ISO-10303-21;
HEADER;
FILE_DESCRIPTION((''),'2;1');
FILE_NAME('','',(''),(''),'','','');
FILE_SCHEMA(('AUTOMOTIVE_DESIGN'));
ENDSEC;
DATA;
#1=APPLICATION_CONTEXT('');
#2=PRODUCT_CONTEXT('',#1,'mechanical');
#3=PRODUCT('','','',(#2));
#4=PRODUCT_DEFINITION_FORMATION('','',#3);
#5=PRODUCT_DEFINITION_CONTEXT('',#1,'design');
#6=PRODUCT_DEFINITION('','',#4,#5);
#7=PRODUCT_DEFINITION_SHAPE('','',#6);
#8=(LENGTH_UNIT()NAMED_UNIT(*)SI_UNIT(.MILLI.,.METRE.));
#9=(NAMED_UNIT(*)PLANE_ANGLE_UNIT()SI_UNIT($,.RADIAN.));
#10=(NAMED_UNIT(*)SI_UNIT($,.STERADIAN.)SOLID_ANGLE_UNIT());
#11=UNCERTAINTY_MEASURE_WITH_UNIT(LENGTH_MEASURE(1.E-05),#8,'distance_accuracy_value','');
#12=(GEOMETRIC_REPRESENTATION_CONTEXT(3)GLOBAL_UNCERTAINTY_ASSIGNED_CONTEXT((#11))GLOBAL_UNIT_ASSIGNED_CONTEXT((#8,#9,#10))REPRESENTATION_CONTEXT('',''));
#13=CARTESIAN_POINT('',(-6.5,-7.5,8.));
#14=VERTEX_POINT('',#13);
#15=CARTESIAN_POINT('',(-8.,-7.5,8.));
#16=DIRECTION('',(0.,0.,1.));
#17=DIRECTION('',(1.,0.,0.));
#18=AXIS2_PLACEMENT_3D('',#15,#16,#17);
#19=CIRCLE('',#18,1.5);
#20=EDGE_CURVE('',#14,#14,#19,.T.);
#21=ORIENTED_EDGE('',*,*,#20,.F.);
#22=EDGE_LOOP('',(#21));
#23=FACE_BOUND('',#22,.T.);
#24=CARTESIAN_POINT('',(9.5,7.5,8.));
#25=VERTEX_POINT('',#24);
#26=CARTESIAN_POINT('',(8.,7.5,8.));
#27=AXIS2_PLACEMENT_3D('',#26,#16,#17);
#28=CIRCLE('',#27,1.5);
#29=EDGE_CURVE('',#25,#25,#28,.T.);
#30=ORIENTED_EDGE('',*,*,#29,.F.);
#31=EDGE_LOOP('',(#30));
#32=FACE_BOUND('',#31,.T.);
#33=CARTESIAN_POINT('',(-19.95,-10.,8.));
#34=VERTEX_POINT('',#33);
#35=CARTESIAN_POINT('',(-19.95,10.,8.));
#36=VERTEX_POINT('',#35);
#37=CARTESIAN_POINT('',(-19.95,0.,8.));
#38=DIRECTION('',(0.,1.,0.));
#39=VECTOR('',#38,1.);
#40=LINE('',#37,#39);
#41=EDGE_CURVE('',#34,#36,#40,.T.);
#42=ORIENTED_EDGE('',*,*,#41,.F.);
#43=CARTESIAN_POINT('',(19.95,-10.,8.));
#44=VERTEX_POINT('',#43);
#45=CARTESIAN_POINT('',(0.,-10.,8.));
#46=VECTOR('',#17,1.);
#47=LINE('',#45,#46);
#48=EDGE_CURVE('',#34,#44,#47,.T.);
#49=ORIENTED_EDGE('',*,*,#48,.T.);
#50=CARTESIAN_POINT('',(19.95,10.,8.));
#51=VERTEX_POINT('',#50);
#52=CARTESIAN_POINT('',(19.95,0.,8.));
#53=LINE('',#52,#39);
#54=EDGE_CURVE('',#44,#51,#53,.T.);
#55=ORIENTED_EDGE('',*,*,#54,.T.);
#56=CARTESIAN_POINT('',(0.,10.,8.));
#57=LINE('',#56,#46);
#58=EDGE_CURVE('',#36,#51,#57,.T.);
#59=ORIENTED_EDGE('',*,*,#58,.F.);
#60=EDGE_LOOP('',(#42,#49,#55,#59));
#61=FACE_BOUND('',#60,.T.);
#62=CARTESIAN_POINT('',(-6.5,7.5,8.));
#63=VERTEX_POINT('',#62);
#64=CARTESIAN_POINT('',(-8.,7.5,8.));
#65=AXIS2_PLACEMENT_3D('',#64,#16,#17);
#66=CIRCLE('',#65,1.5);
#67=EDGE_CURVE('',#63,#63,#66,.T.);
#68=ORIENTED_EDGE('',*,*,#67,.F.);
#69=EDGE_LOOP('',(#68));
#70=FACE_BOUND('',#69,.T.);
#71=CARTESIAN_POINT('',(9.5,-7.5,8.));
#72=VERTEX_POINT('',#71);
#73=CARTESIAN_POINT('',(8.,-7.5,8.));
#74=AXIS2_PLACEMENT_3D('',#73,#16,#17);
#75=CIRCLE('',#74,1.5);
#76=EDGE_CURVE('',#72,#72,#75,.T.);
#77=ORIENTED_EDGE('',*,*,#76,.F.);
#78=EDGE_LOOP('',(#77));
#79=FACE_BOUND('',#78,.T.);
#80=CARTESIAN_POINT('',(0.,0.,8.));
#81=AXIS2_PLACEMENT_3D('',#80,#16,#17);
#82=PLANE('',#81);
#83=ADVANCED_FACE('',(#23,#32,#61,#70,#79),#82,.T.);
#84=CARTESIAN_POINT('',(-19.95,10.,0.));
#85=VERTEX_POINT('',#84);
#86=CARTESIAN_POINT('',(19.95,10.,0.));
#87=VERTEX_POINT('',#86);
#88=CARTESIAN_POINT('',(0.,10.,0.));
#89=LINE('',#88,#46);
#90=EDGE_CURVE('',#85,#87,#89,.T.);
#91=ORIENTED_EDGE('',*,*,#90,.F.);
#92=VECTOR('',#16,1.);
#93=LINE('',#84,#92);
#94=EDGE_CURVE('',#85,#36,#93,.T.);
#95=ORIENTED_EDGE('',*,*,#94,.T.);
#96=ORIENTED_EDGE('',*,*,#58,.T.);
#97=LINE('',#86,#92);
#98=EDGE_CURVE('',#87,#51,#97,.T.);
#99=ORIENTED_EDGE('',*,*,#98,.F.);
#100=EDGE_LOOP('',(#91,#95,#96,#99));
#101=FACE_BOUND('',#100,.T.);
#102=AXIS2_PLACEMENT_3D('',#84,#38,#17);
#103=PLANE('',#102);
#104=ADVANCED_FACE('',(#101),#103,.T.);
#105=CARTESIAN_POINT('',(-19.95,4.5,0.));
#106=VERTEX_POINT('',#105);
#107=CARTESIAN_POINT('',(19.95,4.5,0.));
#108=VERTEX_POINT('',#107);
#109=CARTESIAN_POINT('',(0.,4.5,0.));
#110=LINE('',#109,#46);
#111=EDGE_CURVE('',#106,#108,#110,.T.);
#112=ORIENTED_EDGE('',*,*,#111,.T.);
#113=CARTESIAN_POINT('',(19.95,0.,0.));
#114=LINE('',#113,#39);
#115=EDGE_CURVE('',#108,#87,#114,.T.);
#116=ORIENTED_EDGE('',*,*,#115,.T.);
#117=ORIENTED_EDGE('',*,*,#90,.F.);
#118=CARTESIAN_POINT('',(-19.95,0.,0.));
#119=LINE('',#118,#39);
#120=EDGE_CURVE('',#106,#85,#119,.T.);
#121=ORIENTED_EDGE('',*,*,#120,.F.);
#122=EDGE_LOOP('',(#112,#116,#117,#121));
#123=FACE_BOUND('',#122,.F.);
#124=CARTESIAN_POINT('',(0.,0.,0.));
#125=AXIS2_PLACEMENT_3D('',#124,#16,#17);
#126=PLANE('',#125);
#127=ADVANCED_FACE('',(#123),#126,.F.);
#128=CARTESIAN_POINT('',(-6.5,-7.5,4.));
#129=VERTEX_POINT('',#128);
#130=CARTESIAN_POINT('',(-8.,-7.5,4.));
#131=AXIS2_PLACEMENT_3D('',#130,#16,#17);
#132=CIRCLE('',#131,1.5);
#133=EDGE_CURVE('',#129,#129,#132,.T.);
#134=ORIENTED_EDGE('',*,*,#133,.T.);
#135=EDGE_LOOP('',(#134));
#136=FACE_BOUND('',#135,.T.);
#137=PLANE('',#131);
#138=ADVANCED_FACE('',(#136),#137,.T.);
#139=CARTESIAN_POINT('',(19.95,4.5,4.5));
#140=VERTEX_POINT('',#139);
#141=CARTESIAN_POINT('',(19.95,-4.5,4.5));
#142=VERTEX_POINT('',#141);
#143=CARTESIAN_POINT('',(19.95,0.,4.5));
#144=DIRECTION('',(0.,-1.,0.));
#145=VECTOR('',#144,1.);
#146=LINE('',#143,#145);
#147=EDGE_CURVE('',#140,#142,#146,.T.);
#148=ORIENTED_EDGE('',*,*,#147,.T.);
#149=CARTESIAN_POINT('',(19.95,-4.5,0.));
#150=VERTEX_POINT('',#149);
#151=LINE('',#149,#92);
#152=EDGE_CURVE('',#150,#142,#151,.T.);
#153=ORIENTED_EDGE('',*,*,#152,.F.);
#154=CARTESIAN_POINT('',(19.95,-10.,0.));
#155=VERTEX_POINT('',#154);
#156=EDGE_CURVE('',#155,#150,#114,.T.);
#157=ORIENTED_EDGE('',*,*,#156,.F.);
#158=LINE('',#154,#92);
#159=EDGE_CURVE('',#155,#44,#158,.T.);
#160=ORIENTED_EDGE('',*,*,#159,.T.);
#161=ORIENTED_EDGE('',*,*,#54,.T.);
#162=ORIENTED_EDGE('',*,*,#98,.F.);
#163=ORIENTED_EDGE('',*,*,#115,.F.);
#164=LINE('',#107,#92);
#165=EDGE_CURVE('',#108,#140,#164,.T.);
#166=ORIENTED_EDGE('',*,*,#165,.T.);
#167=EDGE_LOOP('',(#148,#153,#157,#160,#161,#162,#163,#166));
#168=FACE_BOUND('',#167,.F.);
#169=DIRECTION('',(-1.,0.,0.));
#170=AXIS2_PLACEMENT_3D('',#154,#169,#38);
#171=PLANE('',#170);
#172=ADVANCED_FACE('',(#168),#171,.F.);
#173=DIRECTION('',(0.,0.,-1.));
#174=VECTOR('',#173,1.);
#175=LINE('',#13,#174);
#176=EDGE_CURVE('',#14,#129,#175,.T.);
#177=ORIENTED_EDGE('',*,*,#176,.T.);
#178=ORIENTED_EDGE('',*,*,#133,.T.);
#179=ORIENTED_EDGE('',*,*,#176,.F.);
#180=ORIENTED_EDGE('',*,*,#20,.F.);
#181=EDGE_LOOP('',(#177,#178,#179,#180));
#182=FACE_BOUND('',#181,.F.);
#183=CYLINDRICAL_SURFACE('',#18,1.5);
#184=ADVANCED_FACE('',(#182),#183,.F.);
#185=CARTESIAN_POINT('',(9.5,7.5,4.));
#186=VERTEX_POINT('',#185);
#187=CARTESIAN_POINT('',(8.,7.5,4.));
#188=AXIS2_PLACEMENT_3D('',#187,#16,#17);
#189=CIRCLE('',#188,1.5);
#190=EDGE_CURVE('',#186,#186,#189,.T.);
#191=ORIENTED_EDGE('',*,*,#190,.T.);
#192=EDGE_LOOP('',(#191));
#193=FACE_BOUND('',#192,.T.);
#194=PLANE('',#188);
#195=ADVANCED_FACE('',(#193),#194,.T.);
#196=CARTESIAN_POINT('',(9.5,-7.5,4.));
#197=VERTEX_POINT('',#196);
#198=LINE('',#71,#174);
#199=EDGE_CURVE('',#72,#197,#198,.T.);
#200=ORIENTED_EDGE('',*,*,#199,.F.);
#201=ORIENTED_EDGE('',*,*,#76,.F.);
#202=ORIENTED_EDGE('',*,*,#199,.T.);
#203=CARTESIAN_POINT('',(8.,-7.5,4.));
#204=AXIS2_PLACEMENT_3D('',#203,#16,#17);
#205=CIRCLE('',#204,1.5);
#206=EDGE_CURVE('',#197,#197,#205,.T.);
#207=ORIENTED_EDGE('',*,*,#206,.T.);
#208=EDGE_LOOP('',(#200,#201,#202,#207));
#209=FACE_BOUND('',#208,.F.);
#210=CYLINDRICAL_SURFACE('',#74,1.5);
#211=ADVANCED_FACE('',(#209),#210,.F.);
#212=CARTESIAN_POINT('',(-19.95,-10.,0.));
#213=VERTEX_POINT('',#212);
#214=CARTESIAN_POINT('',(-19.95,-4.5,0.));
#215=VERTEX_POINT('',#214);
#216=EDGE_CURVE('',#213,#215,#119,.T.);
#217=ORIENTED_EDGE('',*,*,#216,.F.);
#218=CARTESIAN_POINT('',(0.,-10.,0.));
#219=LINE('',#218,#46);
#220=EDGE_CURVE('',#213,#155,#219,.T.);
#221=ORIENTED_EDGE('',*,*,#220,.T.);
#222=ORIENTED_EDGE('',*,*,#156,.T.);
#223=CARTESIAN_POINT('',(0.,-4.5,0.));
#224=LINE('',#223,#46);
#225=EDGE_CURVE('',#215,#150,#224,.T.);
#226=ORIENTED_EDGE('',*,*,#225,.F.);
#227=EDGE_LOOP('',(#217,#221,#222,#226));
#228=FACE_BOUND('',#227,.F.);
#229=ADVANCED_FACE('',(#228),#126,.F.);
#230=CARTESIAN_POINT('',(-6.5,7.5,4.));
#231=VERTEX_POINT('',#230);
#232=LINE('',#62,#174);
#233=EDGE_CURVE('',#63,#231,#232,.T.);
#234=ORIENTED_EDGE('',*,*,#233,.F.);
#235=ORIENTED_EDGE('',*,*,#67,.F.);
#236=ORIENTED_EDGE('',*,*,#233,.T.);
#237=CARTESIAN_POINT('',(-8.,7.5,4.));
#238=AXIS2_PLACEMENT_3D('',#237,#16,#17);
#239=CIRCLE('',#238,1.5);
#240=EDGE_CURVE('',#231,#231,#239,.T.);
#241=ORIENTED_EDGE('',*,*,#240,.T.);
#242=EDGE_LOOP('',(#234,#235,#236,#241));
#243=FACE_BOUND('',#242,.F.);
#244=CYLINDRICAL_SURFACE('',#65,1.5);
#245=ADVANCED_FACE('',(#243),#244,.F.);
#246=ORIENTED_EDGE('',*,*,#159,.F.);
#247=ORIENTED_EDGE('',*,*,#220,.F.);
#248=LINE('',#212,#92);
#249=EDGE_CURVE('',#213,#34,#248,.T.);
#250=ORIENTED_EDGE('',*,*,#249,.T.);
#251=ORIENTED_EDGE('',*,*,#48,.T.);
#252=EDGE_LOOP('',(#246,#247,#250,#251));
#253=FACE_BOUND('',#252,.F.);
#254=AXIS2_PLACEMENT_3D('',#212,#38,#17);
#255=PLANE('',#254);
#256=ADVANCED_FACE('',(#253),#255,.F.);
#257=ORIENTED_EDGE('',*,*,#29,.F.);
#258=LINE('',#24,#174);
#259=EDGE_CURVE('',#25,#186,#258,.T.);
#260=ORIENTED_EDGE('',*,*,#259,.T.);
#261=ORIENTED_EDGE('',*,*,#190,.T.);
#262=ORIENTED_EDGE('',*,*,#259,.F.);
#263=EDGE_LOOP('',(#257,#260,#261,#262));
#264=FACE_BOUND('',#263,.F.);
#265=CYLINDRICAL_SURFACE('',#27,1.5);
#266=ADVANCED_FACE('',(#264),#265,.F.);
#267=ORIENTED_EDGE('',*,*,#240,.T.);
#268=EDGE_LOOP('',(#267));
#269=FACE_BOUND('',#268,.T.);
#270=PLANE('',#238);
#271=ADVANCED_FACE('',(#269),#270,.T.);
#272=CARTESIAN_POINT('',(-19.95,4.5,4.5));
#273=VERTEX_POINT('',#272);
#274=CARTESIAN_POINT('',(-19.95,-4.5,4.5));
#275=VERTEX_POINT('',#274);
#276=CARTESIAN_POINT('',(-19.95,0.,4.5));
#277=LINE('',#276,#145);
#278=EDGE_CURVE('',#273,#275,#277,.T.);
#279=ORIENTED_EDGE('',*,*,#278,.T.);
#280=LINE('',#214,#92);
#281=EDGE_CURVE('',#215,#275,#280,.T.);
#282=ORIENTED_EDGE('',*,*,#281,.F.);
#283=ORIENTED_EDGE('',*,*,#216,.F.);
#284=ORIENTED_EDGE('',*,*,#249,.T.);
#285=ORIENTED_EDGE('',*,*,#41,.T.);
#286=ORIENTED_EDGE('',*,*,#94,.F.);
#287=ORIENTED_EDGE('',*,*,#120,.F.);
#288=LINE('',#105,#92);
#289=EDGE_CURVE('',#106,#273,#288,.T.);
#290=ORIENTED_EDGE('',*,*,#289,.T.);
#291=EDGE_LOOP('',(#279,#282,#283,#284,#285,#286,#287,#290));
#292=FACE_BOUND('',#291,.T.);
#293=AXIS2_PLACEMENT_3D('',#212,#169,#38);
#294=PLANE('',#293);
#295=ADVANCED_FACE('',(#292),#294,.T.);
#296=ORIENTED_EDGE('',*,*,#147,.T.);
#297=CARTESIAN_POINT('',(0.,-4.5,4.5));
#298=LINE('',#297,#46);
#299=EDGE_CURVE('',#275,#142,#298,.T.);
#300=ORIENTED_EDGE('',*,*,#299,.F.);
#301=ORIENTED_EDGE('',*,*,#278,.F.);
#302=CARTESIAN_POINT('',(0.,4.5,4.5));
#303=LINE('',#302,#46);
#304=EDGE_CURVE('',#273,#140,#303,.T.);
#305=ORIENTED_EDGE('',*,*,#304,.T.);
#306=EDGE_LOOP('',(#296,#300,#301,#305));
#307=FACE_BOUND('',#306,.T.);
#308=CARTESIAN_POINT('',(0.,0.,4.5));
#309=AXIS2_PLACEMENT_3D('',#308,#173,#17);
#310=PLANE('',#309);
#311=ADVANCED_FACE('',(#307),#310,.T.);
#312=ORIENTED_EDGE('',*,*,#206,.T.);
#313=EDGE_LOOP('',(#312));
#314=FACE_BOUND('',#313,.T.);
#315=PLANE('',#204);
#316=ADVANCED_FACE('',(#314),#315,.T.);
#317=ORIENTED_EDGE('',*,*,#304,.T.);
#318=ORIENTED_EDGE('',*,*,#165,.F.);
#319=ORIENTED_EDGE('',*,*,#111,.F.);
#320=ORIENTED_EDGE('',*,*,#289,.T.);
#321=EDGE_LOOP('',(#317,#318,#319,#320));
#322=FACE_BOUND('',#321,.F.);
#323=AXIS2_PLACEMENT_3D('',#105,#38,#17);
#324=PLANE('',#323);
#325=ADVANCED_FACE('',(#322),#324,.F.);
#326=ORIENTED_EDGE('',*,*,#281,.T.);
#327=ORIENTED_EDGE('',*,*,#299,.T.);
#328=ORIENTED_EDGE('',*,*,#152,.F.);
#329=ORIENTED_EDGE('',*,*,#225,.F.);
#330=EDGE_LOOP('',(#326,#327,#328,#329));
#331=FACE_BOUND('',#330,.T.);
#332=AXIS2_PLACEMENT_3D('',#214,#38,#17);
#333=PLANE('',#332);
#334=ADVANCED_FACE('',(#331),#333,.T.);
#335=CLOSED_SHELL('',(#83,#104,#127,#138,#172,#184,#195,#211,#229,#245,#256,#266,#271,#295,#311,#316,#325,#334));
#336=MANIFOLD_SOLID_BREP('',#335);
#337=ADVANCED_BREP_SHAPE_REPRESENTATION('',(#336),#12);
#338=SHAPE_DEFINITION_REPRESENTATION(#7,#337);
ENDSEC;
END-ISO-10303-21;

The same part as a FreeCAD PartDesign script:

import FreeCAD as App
import Part
import Sketcher

V = App.Vector


def add_polygon(sketch, points):
    """Adds a closed chain of lines whose ends are joined by coincident constraints."""
    first, n = sketch.GeometryCount, len(points)
    for a, b in zip(points, points[1:] + points[:1]):
        sketch.addGeometry(Part.LineSegment(App.Vector(*a, 0), App.Vector(*b, 0)), False)
    for i in range(n):
        sketch.addConstraint(Sketcher.Constraint("Coincident", first + i, 2, first + (i + 1) % n, 1))

doc = App.newDocument("Part")
body = doc.addObject("PartDesign::Body", "Body")

sketch1 = body.newObject("Sketcher::SketchObject", "Sketch")
sketch1.AttachmentSupport = (doc.getObject("XY_Plane"), [""])
sketch1.MapMode = "FlatFace"
add_polygon(sketch1, [(-19.95, 10), (-19.95, -10), (19.95, -10), (19.95, 10)])
sketch1.addConstraint([
    Sketcher.Constraint("Vertical", 0),
    Sketcher.Constraint("Horizontal", 1),
    Sketcher.Constraint("Vertical", 2),
    Sketcher.Constraint("Horizontal", 3),
    Sketcher.Constraint("Symmetric", 0, 2, 2, 2, -1, 1),
    Sketcher.Constraint("DistanceY", 0, 2, 0, 1, 20.0),
    Sketcher.Constraint("DistanceX", 1, 1, 1, 2, 39.9),
])
pad1 = body.newObject("PartDesign::Pad", "Pad")
pad1.Profile = sketch1
pad1.Length = 8

sketch2 = body.newObject("Sketcher::SketchObject", "Sketch001")
sketch2.AttachmentSupport = (doc.getObject("XY_Plane"), [""])
sketch2.MapMode = "FlatFace"
add_polygon(sketch2, [(-19.95, -4.5), (-19.95, 4.5), (19.95, 4.5), (19.95, -4.5)])
sketch2.addConstraint([
    Sketcher.Constraint("Vertical", 0),
    Sketcher.Constraint("Horizontal", 1),
    Sketcher.Constraint("Vertical", 2),
    Sketcher.Constraint("Horizontal", 3),
    Sketcher.Constraint("Symmetric", 0, 2, 2, 2, -1, 1),
    Sketcher.Constraint("DistanceY", 0, 1, 0, 2, 9.0),
    Sketcher.Constraint("DistanceX", 1, 1, 1, 2, 39.9),
])
pocket1 = body.newObject("PartDesign::Pocket", "Pocket")
pocket1.Profile = sketch2
pocket1.Length = 4.5
pocket1.Reversed = True

sketch3 = body.newObject("Sketcher::SketchObject", "Sketch002")
sketch3.AttachmentSupport = (doc.getObject("XY_Plane"), [""])
sketch3.MapMode = "FlatFace"
sketch3.AttachmentOffset = App.Placement(V(0, 0, 8), App.Rotation())
sketch3.addGeometry([
    Part.Circle(V(-8, 7.5, 0), V(0, 0, 1), 1.5),
    Part.Circle(V(8, 7.5, 0), V(0, 0, 1), 1.5),
    Part.Circle(V(8, -7.5, 0), V(0, 0, 1), 1.5),
    Part.Circle(V(-8, -7.5, 0), V(0, 0, 1), 1.5),
], False)
sketch3.addConstraint([
    Sketcher.Constraint("Equal", 0, 1),
    Sketcher.Constraint("Equal", 1, 2),
    Sketcher.Constraint("Equal", 2, 3),
    Sketcher.Constraint("Symmetric", 0, 3, 2, 3, -1, 1),
    Sketcher.Constraint("Symmetric", 1, 3, 3, 3, -1, 1),
    Sketcher.Constraint("Symmetric", 0, 3, 1, 3, -2),
    Sketcher.Constraint("Diameter", 0, 3.0),
    Sketcher.Constraint("DistanceX", 0, 3, -1, 1, 8.0),
    Sketcher.Constraint("DistanceY", 2, 3, 1, 3, 15.0),
])
pocket2 = body.newObject("PartDesign::Pocket", "Pocket001")
pocket2.Profile = sketch3
pocket2.Length = 4

doc.recompute()
